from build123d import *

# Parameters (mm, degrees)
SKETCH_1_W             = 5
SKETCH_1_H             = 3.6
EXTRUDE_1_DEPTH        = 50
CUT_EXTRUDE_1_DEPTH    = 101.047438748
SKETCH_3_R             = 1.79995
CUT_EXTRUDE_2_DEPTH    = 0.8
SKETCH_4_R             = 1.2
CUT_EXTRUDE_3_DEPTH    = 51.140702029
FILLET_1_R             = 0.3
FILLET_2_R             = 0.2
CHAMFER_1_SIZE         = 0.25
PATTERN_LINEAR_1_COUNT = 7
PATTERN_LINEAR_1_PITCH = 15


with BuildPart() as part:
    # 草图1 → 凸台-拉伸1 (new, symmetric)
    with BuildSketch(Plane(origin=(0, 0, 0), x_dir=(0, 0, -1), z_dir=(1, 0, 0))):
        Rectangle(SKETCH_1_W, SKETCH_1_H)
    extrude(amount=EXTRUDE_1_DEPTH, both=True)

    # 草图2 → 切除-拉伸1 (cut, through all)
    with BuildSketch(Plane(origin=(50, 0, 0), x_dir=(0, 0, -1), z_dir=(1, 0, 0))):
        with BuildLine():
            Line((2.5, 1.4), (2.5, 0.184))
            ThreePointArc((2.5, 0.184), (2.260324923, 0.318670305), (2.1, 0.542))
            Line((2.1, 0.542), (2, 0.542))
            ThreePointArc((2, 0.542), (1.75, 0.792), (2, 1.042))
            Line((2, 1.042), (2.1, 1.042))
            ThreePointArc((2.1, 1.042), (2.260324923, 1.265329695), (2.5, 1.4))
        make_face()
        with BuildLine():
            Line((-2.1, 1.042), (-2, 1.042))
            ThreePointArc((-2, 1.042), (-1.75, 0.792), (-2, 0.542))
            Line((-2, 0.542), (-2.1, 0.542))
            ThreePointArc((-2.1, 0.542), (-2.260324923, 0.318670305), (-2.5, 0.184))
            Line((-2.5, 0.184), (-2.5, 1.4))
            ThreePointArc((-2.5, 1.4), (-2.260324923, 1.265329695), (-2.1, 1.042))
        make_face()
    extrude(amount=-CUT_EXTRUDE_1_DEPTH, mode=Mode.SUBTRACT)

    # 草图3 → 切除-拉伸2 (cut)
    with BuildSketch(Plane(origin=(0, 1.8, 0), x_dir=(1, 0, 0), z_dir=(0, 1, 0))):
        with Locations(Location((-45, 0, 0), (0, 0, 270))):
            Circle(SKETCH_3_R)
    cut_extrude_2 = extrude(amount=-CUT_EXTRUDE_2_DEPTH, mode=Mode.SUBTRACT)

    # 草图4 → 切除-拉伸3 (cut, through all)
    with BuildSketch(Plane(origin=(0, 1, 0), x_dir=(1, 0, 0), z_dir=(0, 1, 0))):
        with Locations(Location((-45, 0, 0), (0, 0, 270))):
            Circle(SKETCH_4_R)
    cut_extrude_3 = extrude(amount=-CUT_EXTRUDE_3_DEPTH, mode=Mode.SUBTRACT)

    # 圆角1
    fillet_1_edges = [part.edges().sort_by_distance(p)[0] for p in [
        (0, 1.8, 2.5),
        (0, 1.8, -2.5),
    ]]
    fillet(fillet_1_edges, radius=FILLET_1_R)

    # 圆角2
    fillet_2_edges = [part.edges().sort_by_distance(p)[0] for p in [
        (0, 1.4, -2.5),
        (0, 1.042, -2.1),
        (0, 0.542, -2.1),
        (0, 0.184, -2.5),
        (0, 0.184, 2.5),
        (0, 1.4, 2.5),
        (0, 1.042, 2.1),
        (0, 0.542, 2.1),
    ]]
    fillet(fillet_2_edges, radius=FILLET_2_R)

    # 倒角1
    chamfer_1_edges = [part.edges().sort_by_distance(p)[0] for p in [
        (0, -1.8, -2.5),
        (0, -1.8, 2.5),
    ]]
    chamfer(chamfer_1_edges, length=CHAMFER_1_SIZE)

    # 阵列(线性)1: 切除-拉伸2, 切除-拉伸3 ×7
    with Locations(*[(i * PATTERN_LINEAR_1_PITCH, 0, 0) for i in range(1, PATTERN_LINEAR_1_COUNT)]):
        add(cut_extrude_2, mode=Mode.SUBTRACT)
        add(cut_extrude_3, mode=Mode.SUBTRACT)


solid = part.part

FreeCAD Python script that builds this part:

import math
import FreeCAD as App
import Part
import Sketcher

V = App.Vector
Q = App.Units.Quantity


def edges_at(feature, points):
    """Names of the edges that pass closest to the given points."""
    edges = feature.Shape.Edges
    near = lambda p: min(range(len(edges)), key=lambda i: edges[i].distToShape(Part.Vertex(*p))[0])
    return sorted({f"Edge{near(p) + 1}" for p in points})


def add_polygon(sketch, points):
    """Adds a closed chain of lines whose ends are joined by coincident constraints."""
    first, n = sketch.GeometryCount, len(points)
    for a, b in zip(points, points[1:] + points[:1]):
        sketch.addGeometry(Part.LineSegment(App.Vector(*a, 0), App.Vector(*b, 0)), False)
    for i in range(n):
        sketch.addConstraint(Sketcher.Constraint("Coincident", first + i, 2, first + (i + 1) % n, 1))

doc = App.newDocument("Part")
body = doc.addObject("PartDesign::Body", "Body")

sketch1 = body.newObject("Sketcher::SketchObject", "Sketch")
sketch1.AttachmentSupport = (doc.getObject("YZ_Plane"), [""])
sketch1.MapMode = "FlatFace"
add_polygon(sketch1, [(1.8, 2.5), (-1.8, 2.5), (-1.8, -2.5), (1.8, -2.5)])
sketch1.addConstraint([
    Sketcher.Constraint("Horizontal", 0),
    Sketcher.Constraint("Vertical", 1),
    Sketcher.Constraint("Horizontal", 2),
    Sketcher.Constraint("Vertical", 3),
    Sketcher.Constraint("Symmetric", 0, 2, 2, 2, -1, 1),
    Sketcher.Constraint("DistanceY", 1, 2, 1, 1, Q("5 mm")),
    Sketcher.Constraint("DistanceX", 0, 2, 0, 1, Q("3.6 mm")),
])
pad1 = body.newObject("PartDesign::Pad", "Pad")
pad1.Profile = sketch1
pad1.Length = 100
pad1.Midplane = True

sketch2 = body.newObject("Sketcher::SketchObject", "Sketch001")
sketch2.AttachmentSupport = (doc.getObject("YZ_Plane"), [""])
sketch2.MapMode = "FlatFace"
sketch2.AttachmentOffset = App.Placement(V(0, 0, 50), App.Rotation())
sketch2.addGeometry([
    Part.LineSegment(V(0.18, -2.5, 0), V(1.4, -2.5, 0)),
    Part.ArcOfCircle(Part.Circle(V(0.79, -2.68, 0), V(0, 0, 1), 0.64), math.radians(17), math.radians(67)),
    Part.LineSegment(V(1.04, -2.1, 0), V(1.04, -2, 0)),
    Part.ArcOfCircle(Part.Circle(V(0.79, -2, 0), V(0, 0, 1), 0.25), math.radians(0), math.radians(180)),
    Part.LineSegment(V(0.54, -2, 0), V(0.54, -2.1, 0)),
    Part.ArcOfCircle(Part.Circle(V(0.79, -2.68, 0), V(0, 0, 1), 0.64), math.radians(113), math.radians(163)),
    Part.LineSegment(V(1.04, 2, 0), V(1.04, 2.1, 0)),
    Part.ArcOfCircle(Part.Circle(V(0.79, 2.68, 0), V(0, 0, 1), 0.64), math.radians(-67), math.radians(-17)),
    Part.LineSegment(V(1.4, 2.5, 0), V(0.18, 2.5, 0)),
    Part.ArcOfCircle(Part.Circle(V(0.79, 2.68, 0), V(0, 0, 1), 0.64), math.radians(-163), math.radians(-113)),
    Part.LineSegment(V(0.54, 2.1, 0), V(0.54, 2, 0)),
    Part.ArcOfCircle(Part.Circle(V(0.79, 2, 0), V(0, 0, 1), 0.25), math.radians(180), math.radians(360)),
], False)
sketch2.addConstraint([
    Sketcher.Constraint("Coincident", 0, 2, 1, 1),
    Sketcher.Constraint("Coincident", 1, 2, 2, 1),
    Sketcher.Constraint("Tangent", 2, 2, 3, 1),
    Sketcher.Constraint("Tangent", 3, 2, 4, 1),
    Sketcher.Constraint("Coincident", 4, 2, 5, 1),
    Sketcher.Constraint("Coincident", 5, 2, 0, 1),
    Sketcher.Constraint("Coincident", 6, 2, 7, 1),
    Sketcher.Constraint("Coincident", 7, 2, 8, 1),
    Sketcher.Constraint("Coincident", 8, 2, 9, 1),
    Sketcher.Constraint("Coincident", 9, 2, 10, 1),
    Sketcher.Constraint("Tangent", 10, 2, 11, 1),
    Sketcher.Constraint("Tangent", 11, 2, 6, 1),
    Sketcher.Constraint("Horizontal", 0),
    Sketcher.Constraint("Vertical", 2),
    Sketcher.Constraint("Vertical", 4),
    Sketcher.Constraint("Vertical", 6),
    Sketcher.Constraint("Horizontal", 8),
    Sketcher.Constraint("Vertical", 10),
    Sketcher.Constraint("Coincident", 5, 3, 1, 3),
    Sketcher.Constraint("Coincident", 9, 3, 7, 3),
    Sketcher.Constraint("Equal", 1, 5),
    Sketcher.Constraint("Equal", 5, 7),
    Sketcher.Constraint("Equal", 7, 9),
    Sketcher.Constraint("Equal", 3, 11),
    Sketcher.Constraint("Symmetric", 1, 3, 7, 3, -1),
    Sketcher.Constraint("Symmetric", 3, 3, 11, 3, -1),
    Sketcher.Constraint("Horizontal", 1, 2, 4, 2),
    Sketcher.Constraint("Vertical", 0, 2, 7, 2),
    Sketcher.Constraint("Radius", 3, Q("0.25 mm")),
    Sketcher.Constraint("DistanceY", 2, 1, 2, 2, Q("0.1 mm")),
    Sketcher.Constraint("DistanceY", 3, 3, -1, 1, Q("2 mm")),
    Sketcher.Constraint("DistanceX", -1, 1, 0, 2, Q("1.4 mm")),
    Sketcher.Constraint("DistanceY", 0, 2, -1, 1, Q("2.5 mm")),
    Sketcher.Constraint("DistanceX", 0, 1, 0, 2, Q("1.216 mm")),
])
pocket1 = body.newObject("PartDesign::Pocket", "Pocket")
pocket1.Profile = sketch2
pocket1.Type = "ThroughAll"

sketch3 = body.newObject("Sketcher::SketchObject", "Sketch002")
sketch3.AttachmentSupport = (doc.getObject("XZ_Plane"), [""])
sketch3.MapMode = "FlatFace"
sketch3.AttachmentOffset = App.Placement(V(0, 0, -1.8), App.Rotation())
sketch3.addGeometry(Part.Circle(V(-45, 0, 0), V(0, 0, 1), 1.8), False)
sketch3.addConstraint([
    Sketcher.Constraint("PointOnObject", 0, 3, -1),
    Sketcher.Constraint("DistanceX", 0, 3, -1, 1, Q("45 mm")),
    Sketcher.Constraint("Diameter", 0, Q("3.5999 mm")),
])
pocket2 = body.newObject("PartDesign::Pocket", "Pocket001")
pocket2.Profile = sketch3
pocket2.Length = 0.8
pocket2.Reversed = True

sketch4 = body.newObject("Sketcher::SketchObject", "Sketch003")
sketch4.AttachmentSupport = (doc.getObject("XZ_Plane"), [""])
sketch4.MapMode = "FlatFace"
sketch4.AttachmentOffset = App.Placement(V(0, 0, -1), App.Rotation())
sketch4.addGeometry(Part.Circle(V(-45, 0, 0), V(0, 0, 1), 1.2), False)
sketch4.addConstraint([
    Sketcher.Constraint("PointOnObject", 0, 3, -1),
    Sketcher.Constraint("Diameter", 0, Q("2.4 mm")),
    Sketcher.Constraint("DistanceX", 0, 3, -1, 1, Q("45 mm")),
])
pocket3 = body.newObject("PartDesign::Pocket", "Pocket002")
pocket3.Profile = sketch4
pocket3.Type = "ThroughAll"
pocket3.Reversed = True
doc.recompute()

fillet = body.newObject("PartDesign::Fillet", "Fillet")
fillet.Base = (pocket3, edges_at(pocket3, [(0, 1.8, 2.5), (0, 1.8, -2.5)]))
fillet.Radius = 0.3
doc.recompute()

fillet2 = body.newObject("PartDesign::Fillet", "Fillet001")
fillet2.Base = (fillet, edges_at(fillet, [
    (0, 1.4, -2.5),
    (0, 1.042, -2.1),
    (0, 0.542, -2.1),
    (0, 0.184, -2.5),
    (0, 0.184, 2.5),
    (0, 1.4, 2.5),
    (0, 1.042, 2.1),
    (0, 0.542, 2.1),
]))
fillet2.Radius = 0.2
doc.recompute()

chamfer = body.newObject("PartDesign::Chamfer", "Chamfer")
chamfer.Base = (fillet2, edges_at(fillet2, [(0, -1.8, -2.5), (0, -1.8, 2.5)]))
chamfer.Size = 0.25
doc.recompute()

linearpattern = body.newObject("PartDesign::LinearPattern", "LinearPattern")
linearpattern.Originals = [pocket2, pocket3]
linearpattern.Direction = (doc.getObject("X_Axis"), [""])
linearpattern.Mode = "offset"
linearpattern.Offset = 15
linearpattern.Occurrences = 7
body.Tip = linearpattern

doc.recompute()
